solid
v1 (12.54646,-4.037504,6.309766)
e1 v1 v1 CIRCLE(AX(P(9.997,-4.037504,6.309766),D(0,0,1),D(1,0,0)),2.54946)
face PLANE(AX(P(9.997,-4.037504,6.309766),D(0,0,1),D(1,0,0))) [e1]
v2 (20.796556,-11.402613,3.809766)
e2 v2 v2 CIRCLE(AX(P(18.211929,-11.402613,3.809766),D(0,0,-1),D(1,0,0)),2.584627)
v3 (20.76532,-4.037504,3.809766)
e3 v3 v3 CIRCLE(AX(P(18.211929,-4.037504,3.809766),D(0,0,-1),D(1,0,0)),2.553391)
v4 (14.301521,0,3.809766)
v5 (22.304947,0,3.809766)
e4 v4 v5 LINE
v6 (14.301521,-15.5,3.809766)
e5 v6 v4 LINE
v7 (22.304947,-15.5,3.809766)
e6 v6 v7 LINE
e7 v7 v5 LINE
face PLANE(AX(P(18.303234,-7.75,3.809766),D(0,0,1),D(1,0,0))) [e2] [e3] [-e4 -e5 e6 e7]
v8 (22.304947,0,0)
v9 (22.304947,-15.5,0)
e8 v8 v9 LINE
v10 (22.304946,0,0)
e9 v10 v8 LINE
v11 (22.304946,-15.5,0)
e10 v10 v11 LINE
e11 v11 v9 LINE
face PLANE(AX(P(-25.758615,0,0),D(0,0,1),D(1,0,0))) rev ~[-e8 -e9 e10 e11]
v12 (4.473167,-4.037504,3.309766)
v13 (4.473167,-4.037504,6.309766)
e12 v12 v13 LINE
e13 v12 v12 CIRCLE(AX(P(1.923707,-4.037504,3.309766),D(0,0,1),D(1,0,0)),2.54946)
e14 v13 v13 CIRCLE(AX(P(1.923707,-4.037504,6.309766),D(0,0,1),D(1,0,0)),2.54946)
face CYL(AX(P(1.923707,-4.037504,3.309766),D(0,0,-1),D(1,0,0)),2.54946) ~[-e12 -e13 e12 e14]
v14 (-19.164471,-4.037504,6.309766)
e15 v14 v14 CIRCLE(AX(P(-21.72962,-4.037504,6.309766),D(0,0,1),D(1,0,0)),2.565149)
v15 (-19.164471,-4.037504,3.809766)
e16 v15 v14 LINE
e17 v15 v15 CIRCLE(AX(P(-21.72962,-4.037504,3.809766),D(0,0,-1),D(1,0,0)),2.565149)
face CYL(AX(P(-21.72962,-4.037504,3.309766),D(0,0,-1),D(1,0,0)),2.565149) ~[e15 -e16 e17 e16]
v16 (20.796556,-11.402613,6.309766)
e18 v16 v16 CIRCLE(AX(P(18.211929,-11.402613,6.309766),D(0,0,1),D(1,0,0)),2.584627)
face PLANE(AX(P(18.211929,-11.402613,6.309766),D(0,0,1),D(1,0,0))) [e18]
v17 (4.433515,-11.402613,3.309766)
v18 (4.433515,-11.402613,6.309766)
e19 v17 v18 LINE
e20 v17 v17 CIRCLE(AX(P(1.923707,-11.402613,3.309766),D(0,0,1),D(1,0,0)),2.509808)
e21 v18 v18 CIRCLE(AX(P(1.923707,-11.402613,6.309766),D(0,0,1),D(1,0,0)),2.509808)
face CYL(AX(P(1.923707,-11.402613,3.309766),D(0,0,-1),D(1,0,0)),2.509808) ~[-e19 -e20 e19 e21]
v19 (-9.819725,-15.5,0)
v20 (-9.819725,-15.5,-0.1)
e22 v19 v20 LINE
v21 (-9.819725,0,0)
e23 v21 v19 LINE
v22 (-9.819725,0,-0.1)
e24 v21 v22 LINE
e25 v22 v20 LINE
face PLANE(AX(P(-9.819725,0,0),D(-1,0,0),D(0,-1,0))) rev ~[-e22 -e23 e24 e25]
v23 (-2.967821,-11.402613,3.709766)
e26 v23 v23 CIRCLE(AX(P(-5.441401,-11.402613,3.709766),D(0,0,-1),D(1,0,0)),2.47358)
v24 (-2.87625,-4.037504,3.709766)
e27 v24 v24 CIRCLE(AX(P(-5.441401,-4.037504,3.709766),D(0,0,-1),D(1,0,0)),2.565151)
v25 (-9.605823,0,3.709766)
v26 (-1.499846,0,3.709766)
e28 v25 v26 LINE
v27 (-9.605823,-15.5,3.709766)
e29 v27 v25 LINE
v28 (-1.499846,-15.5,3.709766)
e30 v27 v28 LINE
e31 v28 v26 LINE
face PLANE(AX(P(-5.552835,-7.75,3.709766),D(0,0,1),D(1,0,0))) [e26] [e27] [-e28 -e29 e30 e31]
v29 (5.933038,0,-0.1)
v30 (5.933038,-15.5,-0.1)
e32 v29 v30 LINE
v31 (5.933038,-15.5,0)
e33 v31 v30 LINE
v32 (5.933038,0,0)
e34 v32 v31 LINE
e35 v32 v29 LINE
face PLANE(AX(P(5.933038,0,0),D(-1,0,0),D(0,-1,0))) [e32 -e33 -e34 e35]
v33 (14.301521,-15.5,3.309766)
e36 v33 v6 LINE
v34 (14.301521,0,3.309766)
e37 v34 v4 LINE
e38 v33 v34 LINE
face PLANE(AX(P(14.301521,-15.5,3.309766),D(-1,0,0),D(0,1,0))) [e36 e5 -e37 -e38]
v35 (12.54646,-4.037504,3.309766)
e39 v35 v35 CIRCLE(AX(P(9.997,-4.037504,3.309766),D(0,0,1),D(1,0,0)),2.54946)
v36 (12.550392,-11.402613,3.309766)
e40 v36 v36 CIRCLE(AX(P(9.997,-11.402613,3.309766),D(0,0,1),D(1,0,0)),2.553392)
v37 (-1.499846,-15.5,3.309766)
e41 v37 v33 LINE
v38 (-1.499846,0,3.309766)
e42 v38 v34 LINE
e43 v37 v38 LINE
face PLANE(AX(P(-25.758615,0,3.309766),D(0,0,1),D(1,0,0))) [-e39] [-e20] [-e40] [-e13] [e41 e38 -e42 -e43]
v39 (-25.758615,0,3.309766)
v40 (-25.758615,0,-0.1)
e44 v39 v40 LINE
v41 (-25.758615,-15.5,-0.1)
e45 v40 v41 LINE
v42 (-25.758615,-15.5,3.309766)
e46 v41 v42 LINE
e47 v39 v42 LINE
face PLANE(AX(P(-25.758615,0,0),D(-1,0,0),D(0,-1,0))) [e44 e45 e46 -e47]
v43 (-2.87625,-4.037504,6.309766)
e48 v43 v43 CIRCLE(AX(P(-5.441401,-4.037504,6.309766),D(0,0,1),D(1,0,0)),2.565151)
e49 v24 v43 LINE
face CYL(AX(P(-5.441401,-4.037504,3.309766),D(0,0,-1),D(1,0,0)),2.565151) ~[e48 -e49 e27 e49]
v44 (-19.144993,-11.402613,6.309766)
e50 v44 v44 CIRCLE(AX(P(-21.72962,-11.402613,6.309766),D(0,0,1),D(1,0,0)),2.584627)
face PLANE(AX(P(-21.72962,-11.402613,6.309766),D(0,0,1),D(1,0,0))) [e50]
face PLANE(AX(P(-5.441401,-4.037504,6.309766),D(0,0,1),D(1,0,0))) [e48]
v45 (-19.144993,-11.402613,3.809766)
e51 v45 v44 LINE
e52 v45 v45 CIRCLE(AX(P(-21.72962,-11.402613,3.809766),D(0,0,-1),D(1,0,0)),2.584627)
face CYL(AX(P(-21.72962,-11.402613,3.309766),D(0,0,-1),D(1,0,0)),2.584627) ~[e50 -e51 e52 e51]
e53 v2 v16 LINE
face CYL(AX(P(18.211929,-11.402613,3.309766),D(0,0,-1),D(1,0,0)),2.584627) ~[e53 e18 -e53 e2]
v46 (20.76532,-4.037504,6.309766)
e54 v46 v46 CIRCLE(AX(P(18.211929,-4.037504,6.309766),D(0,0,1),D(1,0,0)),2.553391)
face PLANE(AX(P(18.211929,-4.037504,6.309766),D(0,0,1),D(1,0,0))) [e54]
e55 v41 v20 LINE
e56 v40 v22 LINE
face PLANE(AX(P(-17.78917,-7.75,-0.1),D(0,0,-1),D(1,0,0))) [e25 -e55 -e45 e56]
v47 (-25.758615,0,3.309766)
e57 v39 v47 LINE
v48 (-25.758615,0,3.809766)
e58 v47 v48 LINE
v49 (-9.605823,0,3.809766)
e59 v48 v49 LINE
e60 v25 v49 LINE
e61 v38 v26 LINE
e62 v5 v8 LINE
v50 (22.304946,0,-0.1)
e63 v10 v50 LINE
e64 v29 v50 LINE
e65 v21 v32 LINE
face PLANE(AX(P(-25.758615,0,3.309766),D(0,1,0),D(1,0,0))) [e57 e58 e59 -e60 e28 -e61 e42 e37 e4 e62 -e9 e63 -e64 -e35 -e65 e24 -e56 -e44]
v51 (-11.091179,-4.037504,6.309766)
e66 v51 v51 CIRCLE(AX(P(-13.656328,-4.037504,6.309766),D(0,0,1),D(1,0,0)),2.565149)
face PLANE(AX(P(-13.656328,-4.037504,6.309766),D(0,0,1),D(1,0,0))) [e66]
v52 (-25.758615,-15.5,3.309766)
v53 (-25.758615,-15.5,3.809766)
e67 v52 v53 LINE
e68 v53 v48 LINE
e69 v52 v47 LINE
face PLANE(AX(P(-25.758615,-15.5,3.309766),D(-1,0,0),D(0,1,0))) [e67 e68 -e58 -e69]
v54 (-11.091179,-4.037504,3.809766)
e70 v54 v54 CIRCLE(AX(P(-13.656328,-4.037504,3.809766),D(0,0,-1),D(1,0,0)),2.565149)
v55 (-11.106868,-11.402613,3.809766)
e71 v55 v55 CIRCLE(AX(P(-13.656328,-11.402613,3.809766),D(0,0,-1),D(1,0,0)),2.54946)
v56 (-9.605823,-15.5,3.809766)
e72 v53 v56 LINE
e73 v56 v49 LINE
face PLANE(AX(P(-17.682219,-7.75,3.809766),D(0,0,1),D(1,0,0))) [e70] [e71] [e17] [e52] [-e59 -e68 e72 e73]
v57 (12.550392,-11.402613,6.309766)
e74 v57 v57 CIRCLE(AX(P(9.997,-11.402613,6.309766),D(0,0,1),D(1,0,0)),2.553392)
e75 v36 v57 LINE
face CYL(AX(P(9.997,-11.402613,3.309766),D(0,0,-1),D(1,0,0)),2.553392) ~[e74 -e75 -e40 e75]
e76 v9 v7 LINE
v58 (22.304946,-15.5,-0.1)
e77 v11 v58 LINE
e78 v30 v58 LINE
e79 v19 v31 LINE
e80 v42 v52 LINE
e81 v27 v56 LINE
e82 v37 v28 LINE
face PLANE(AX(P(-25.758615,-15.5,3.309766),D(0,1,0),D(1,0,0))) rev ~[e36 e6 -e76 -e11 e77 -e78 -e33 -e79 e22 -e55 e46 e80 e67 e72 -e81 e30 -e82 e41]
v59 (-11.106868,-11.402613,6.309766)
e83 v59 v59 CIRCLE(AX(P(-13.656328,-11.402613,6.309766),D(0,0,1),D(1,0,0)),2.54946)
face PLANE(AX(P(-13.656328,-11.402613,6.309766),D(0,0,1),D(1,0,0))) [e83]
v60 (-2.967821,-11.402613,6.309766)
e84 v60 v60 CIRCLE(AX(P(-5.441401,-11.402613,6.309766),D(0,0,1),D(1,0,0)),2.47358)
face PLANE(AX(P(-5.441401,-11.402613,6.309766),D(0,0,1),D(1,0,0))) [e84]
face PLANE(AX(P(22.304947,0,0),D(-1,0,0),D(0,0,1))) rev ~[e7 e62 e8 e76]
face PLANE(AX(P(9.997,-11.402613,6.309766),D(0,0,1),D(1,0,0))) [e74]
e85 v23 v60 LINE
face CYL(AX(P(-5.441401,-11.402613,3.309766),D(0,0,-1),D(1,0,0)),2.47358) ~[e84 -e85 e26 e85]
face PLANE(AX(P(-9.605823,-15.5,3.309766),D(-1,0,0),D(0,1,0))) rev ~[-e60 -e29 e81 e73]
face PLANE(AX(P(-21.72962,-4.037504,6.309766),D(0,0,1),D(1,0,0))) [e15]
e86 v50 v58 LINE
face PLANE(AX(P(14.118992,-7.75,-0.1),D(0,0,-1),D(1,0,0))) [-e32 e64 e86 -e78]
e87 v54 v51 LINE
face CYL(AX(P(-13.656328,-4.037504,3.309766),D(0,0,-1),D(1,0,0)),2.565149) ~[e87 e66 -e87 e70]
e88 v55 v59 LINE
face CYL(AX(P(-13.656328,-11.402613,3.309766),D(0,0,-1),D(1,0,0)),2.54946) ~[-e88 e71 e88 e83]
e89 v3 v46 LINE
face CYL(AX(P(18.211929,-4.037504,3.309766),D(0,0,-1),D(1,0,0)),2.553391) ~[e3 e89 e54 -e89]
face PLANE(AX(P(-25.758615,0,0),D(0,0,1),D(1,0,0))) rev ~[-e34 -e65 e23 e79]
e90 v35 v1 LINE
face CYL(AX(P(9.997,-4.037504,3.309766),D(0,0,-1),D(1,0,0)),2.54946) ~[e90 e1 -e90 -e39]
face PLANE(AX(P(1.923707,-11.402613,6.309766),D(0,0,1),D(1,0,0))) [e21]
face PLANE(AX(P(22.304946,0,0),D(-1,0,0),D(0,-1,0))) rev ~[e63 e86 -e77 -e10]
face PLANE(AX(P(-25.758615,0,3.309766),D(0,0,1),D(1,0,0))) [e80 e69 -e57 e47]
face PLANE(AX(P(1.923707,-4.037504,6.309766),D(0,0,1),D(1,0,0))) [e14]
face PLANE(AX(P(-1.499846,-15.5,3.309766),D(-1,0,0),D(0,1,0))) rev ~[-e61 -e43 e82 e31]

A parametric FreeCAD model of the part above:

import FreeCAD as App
import Part
import Sketcher


def add_polygon(sketch, points):
    """Adds a closed chain of lines whose ends are joined by coincident constraints."""
    first, n = sketch.GeometryCount, len(points)
    for a, b in zip(points, points[1:] + points[:1]):
        sketch.addGeometry(Part.LineSegment(App.Vector(*a, 0), App.Vector(*b, 0)), False)
    for i in range(n):
        sketch.addConstraint(Sketcher.Constraint("Coincident", first + i, 2, first + (i + 1) % n, 1))

doc = App.newDocument("Part")
body = doc.addObject("PartDesign::Body", "Body")

# Sketch on XZ plane
sketch1 = body.newObject("Sketcher::SketchObject", "Sketch")
sketch1.AttachmentSupport = (doc.getObject("XZ_Plane"), [""])
sketch1.MapMode = "FlatFace"
add_polygon(sketch1, [(-25.758615, 3.309766), (-25.758615, 0), (22.304947, 0), (22.304947, 3.309766)])  # lines 0-3
sketch1.addConstraint([
    Sketcher.Constraint("Vertical", 0),
    Sketcher.Constraint("Horizontal", 1),
    Sketcher.Constraint("Vertical", 2),
    Sketcher.Constraint("Horizontal", 3),
    Sketcher.Constraint("PointOnObject", 0, 2, -1),
    Sketcher.Constraint("DistanceX", 1, 1, 1, 2, 48.063562),
    Sketcher.Constraint("DistanceY", 0, 2, 0, 1, 3.309766),
    Sketcher.Constraint("DistanceX", 0, 2, -1, 1, 25.758615),
])
pad1 = body.newObject("PartDesign::Pad", "Pad")
pad1.Profile = sketch1
pad1.Length = 15.5

# Sketch on XY plane
sketch2 = body.newObject("Sketcher::SketchObject", "Sketch001")
sketch2.AttachmentSupport = (doc.getObject("XY_Plane"), [""])
sketch2.MapMode = "FlatFace"
sketch2.AttachmentOffset = App.Placement(App.Vector(0, 0, 3.309766), App.Rotation())
sketch2.addGeometry([
    Part.Circle(App.Vector(-21.72962, -4.037504, 0), App.Vector(0, 0, 1), 2.565149),  # 0
    Part.Circle(App.Vector(-21.72962, -11.402613, 0), App.Vector(0, 0, 1), 2.584627),  # 1
    Part.Circle(App.Vector(-13.656328, -11.402613, 0), App.Vector(0, 0, 1), 2.54946),  # 2
    Part.Circle(App.Vector(-13.656328, -4.037504, 0), App.Vector(0, 0, 1), 2.565149),  # 3
    Part.Circle(App.Vector(-5.441401, -4.037504, 0), App.Vector(0, 0, 1), 2.565151),  # 4
    Part.Circle(App.Vector(-5.441401, -11.402613, 0), App.Vector(0, 0, 1), 2.47358),  # 5
    Part.Circle(App.Vector(1.923707, -11.402613, 0), App.Vector(0, 0, 1), 2.509808),  # 6
    Part.Circle(App.Vector(1.923707, -4.037504, 0), App.Vector(0, 0, 1), 2.54946),  # 7
    Part.Circle(App.Vector(9.997, -4.037504, 0), App.Vector(0, 0, 1), 2.54946),  # 8
    Part.Circle(App.Vector(9.997, -11.402613, 0), App.Vector(0, 0, 1), 2.553392),  # 9
    Part.Circle(App.Vector(18.211929, -11.402613, 0), App.Vector(0, 0, 1), 2.584627),  # 10
    Part.Circle(App.Vector(18.211929, -4.037504, 0), App.Vector(0, 0, 1), 2.553391),  # 11
], False)
sketch2.addConstraint([
    Sketcher.Constraint("Equal", 0, 3),
    Sketcher.Constraint("Equal", 2, 7),
    Sketcher.Constraint("Equal", 7, 8),
    Sketcher.Constraint("Equal", 1, 10),
    Sketcher.Constraint("Equal", 9, 11),
    Sketcher.Constraint("Horizontal", 1, 3, 2, 3),
    Sketcher.Constraint("Horizontal", 0, 3, 3, 3),
    Sketcher.Constraint("Horizontal", 3, 3, 4, 3),
    Sketcher.Constraint("Horizontal", 2, 3, 5, 3),
    Sketcher.Constraint("Horizontal", 5, 3, 6, 3),
    Sketcher.Constraint("Horizontal", 4, 3, 7, 3),
    Sketcher.Constraint("Horizontal", 7, 3, 8, 3),
    Sketcher.Constraint("Horizontal", 6, 3, 9, 3),
    Sketcher.Constraint("Horizontal", 9, 3, 10, 3),
    Sketcher.Constraint("Horizontal", 8, 3, 11, 3),
    Sketcher.Constraint("Vertical", 0, 3, 1, 3),
    Sketcher.Constraint("Vertical", 2, 3, 3, 3),
    Sketcher.Constraint("Vertical", 4, 3, 5, 3),
    Sketcher.Constraint("Vertical", 6, 3, 7, 3),
    Sketcher.Constraint("Vertical", 8, 3, 9, 3),
    Sketcher.Constraint("Vertical", 10, 3, 11, 3),
    Sketcher.Constraint("Diameter", 2, 5.09892),
    Sketcher.Constraint("Diameter", 5, 4.94716),
    Sketcher.Constraint("Diameter", 0, 5.130298),
    Sketcher.Constraint("Diameter", 1, 5.169254),
    Sketcher.Constraint("Diameter", 4, 5.130302),
    Sketcher.Constraint("Diameter", 6, 5.019616),
    Sketcher.Constraint("Diameter", 9, 5.106784),
    Sketcher.Constraint("DistanceX", -1, 1, 8, 3, 9.997),
    Sketcher.Constraint("DistanceX", 4, 3, -1, 1, 5.441401),
    Sketcher.Constraint("DistanceX", 0, 3, -1, 1, 21.72962),
    Sketcher.Constraint("DistanceX", -1, 1, 10, 3, 18.211929),
    Sketcher.Constraint("DistanceY", 1, 3, 0, 3, 7.365109),
    Sketcher.Constraint("DistanceX", 5, 3, 6, 3, 7.365108),
    Sketcher.Constraint("DistanceX", 3, 3, 8, 3, 23.653328),
    Sketcher.Constraint("DistanceY", 0, 3, -1, 1, 4.037504),
])
pad2 = body.newObject("PartDesign::Pad", "Pad001")
pad2.Profile = sketch2
pad2.Length = 3

# Sketch on XY plane
sketch3 = body.newObject("Sketcher::SketchObject", "Sketch002")
sketch3.AttachmentSupport = (doc.getObject("XY_Plane"), [""])
sketch3.MapMode = "FlatFace"
add_polygon(sketch3, [(5.933038, -15.5), (5.933038, 0), (22.304946, 0), (22.304946, -15.5)])  # lines 0-3
add_polygon(sketch3, [(-25.758615, -15.5), (-25.758615, 0), (-9.819725, 0), (-9.819725, -15.5)])  # lines 4-7
sketch3.addConstraint([
    Sketcher.Constraint("Vertical", 0),
    Sketcher.Constraint("Horizontal", 1),
    Sketcher.Constraint("Vertical", 2),
    Sketcher.Constraint("Horizontal", 3),
    Sketcher.Constraint("Vertical", 4),
    Sketcher.Constraint("Horizontal", 5),
    Sketcher.Constraint("Vertical", 6),
    Sketcher.Constraint("Horizontal", 7),
    Sketcher.Constraint("PointOnObject", 0, 2, -1),
    Sketcher.Constraint("PointOnObject", 4, 2, -1),
    Sketcher.Constraint("Horizontal", 3, 2, 6, 2),
    Sketcher.Constraint("DistanceY", 0, 1, 0, 2, 15.5),
    Sketcher.Constraint("DistanceX", 1, 1, 1, 2, 16.371909),
    Sketcher.Constraint("DistanceX", 5, 1, 5, 2, 15.93889),
    Sketcher.Constraint("DistanceX", 4, 2, 1, 2, 48.063561),
    Sketcher.Constraint("DistanceX", -1, 1, 0, 2, 5.933038),
])
pad3 = body.newObject("PartDesign::Pad", "Pad002")
pad3.Profile = sketch3
pad3.Length = 0.1
pad3.Reversed = True

# Sketch on XY plane
sketch4 = body.newObject("Sketcher::SketchObject", "Sketch003")
sketch4.AttachmentSupport = (doc.getObject("XY_Plane"), [""])
sketch4.MapMode = "FlatFace"
sketch4.AttachmentOffset = App.Placement(App.Vector(0, 0, 3.309766), App.Rotation())
add_polygon(sketch4, [(-25.758615, 0), (-25.758615, -15.5), (-9.605823, -15.5), (-9.605823, 0)])  # lines 0-3
add_polygon(sketch4, [(14.301521, 0), (14.301521, -15.5), (22.304947, -15.5), (22.304947, 0)])  # lines 4-7
sketch4.addConstraint([
    Sketcher.Constraint("Vertical", 0),
    Sketcher.Constraint("Horizontal", 1),
    Sketcher.Constraint("Vertical", 2),
    Sketcher.Constraint("Horizontal", 3),
    Sketcher.Constraint("Vertical", 4),
    Sketcher.Constraint("Horizontal", 5),
    Sketcher.Constraint("Vertical", 6),
    Sketcher.Constraint("Horizontal", 7),
    Sketcher.Constraint("PointOnObject", 2, 2, -1),
    Sketcher.Constraint("PointOnObject", 6, 2, -1),
    Sketcher.Constraint("Horizontal", 1, 2, 4, 2),
    Sketcher.Constraint("DistanceY", 0, 2, 0, 1, 15.5),
    Sketcher.Constraint("DistanceX", 1, 1, 1, 2, 16.152791),
    Sketcher.Constraint("DistanceX", 5, 1, 5, 2, 8.003426),
    Sketcher.Constraint("DistanceX", -1, 1, 4, 2, 14.301521),
    Sketcher.Constraint("DistanceX", 1, 2, 5, 2, 31.91077),
])
pad4 = body.newObject("PartDesign::Pad", "Pad003")
pad4.Profile = sketch4
pad4.Length = 0.5

# Sketch on XY plane
sketch5 = body.newObject("Sketcher::SketchObject", "Sketch004")
sketch5.AttachmentSupport = (doc.getObject("XY_Plane"), [""])
sketch5.MapMode = "FlatFace"
sketch5.AttachmentOffset = App.Placement(App.Vector(0, 0, 3.309766), App.Rotation())
add_polygon(sketch5, [(-9.605824, 0), (-9.605824, -15.5), (-1.499846, -15.5), (-1.499846, 0)])  # lines 0-3
sketch5.addConstraint([
    Sketcher.Constraint("Vertical", 0),
    Sketcher.Constraint("Horizontal", 1),
    Sketcher.Constraint("Vertical", 2),
    Sketcher.Constraint("Horizontal", 3),
    Sketcher.Constraint("PointOnObject", 2, 2, -1),
    Sketcher.Constraint("DistanceY", 0, 2, 0, 1, 15.5),
    Sketcher.Constraint("DistanceX", 1, 1, 1, 2, 8.105978),
    Sketcher.Constraint("DistanceX", 0, 2, -1, 1, 9.605824),
])
pad5 = body.newObject("PartDesign::Pad", "Pad004")
pad5.Profile = sketch5
pad5.Length = 0.4

doc.recompute()
